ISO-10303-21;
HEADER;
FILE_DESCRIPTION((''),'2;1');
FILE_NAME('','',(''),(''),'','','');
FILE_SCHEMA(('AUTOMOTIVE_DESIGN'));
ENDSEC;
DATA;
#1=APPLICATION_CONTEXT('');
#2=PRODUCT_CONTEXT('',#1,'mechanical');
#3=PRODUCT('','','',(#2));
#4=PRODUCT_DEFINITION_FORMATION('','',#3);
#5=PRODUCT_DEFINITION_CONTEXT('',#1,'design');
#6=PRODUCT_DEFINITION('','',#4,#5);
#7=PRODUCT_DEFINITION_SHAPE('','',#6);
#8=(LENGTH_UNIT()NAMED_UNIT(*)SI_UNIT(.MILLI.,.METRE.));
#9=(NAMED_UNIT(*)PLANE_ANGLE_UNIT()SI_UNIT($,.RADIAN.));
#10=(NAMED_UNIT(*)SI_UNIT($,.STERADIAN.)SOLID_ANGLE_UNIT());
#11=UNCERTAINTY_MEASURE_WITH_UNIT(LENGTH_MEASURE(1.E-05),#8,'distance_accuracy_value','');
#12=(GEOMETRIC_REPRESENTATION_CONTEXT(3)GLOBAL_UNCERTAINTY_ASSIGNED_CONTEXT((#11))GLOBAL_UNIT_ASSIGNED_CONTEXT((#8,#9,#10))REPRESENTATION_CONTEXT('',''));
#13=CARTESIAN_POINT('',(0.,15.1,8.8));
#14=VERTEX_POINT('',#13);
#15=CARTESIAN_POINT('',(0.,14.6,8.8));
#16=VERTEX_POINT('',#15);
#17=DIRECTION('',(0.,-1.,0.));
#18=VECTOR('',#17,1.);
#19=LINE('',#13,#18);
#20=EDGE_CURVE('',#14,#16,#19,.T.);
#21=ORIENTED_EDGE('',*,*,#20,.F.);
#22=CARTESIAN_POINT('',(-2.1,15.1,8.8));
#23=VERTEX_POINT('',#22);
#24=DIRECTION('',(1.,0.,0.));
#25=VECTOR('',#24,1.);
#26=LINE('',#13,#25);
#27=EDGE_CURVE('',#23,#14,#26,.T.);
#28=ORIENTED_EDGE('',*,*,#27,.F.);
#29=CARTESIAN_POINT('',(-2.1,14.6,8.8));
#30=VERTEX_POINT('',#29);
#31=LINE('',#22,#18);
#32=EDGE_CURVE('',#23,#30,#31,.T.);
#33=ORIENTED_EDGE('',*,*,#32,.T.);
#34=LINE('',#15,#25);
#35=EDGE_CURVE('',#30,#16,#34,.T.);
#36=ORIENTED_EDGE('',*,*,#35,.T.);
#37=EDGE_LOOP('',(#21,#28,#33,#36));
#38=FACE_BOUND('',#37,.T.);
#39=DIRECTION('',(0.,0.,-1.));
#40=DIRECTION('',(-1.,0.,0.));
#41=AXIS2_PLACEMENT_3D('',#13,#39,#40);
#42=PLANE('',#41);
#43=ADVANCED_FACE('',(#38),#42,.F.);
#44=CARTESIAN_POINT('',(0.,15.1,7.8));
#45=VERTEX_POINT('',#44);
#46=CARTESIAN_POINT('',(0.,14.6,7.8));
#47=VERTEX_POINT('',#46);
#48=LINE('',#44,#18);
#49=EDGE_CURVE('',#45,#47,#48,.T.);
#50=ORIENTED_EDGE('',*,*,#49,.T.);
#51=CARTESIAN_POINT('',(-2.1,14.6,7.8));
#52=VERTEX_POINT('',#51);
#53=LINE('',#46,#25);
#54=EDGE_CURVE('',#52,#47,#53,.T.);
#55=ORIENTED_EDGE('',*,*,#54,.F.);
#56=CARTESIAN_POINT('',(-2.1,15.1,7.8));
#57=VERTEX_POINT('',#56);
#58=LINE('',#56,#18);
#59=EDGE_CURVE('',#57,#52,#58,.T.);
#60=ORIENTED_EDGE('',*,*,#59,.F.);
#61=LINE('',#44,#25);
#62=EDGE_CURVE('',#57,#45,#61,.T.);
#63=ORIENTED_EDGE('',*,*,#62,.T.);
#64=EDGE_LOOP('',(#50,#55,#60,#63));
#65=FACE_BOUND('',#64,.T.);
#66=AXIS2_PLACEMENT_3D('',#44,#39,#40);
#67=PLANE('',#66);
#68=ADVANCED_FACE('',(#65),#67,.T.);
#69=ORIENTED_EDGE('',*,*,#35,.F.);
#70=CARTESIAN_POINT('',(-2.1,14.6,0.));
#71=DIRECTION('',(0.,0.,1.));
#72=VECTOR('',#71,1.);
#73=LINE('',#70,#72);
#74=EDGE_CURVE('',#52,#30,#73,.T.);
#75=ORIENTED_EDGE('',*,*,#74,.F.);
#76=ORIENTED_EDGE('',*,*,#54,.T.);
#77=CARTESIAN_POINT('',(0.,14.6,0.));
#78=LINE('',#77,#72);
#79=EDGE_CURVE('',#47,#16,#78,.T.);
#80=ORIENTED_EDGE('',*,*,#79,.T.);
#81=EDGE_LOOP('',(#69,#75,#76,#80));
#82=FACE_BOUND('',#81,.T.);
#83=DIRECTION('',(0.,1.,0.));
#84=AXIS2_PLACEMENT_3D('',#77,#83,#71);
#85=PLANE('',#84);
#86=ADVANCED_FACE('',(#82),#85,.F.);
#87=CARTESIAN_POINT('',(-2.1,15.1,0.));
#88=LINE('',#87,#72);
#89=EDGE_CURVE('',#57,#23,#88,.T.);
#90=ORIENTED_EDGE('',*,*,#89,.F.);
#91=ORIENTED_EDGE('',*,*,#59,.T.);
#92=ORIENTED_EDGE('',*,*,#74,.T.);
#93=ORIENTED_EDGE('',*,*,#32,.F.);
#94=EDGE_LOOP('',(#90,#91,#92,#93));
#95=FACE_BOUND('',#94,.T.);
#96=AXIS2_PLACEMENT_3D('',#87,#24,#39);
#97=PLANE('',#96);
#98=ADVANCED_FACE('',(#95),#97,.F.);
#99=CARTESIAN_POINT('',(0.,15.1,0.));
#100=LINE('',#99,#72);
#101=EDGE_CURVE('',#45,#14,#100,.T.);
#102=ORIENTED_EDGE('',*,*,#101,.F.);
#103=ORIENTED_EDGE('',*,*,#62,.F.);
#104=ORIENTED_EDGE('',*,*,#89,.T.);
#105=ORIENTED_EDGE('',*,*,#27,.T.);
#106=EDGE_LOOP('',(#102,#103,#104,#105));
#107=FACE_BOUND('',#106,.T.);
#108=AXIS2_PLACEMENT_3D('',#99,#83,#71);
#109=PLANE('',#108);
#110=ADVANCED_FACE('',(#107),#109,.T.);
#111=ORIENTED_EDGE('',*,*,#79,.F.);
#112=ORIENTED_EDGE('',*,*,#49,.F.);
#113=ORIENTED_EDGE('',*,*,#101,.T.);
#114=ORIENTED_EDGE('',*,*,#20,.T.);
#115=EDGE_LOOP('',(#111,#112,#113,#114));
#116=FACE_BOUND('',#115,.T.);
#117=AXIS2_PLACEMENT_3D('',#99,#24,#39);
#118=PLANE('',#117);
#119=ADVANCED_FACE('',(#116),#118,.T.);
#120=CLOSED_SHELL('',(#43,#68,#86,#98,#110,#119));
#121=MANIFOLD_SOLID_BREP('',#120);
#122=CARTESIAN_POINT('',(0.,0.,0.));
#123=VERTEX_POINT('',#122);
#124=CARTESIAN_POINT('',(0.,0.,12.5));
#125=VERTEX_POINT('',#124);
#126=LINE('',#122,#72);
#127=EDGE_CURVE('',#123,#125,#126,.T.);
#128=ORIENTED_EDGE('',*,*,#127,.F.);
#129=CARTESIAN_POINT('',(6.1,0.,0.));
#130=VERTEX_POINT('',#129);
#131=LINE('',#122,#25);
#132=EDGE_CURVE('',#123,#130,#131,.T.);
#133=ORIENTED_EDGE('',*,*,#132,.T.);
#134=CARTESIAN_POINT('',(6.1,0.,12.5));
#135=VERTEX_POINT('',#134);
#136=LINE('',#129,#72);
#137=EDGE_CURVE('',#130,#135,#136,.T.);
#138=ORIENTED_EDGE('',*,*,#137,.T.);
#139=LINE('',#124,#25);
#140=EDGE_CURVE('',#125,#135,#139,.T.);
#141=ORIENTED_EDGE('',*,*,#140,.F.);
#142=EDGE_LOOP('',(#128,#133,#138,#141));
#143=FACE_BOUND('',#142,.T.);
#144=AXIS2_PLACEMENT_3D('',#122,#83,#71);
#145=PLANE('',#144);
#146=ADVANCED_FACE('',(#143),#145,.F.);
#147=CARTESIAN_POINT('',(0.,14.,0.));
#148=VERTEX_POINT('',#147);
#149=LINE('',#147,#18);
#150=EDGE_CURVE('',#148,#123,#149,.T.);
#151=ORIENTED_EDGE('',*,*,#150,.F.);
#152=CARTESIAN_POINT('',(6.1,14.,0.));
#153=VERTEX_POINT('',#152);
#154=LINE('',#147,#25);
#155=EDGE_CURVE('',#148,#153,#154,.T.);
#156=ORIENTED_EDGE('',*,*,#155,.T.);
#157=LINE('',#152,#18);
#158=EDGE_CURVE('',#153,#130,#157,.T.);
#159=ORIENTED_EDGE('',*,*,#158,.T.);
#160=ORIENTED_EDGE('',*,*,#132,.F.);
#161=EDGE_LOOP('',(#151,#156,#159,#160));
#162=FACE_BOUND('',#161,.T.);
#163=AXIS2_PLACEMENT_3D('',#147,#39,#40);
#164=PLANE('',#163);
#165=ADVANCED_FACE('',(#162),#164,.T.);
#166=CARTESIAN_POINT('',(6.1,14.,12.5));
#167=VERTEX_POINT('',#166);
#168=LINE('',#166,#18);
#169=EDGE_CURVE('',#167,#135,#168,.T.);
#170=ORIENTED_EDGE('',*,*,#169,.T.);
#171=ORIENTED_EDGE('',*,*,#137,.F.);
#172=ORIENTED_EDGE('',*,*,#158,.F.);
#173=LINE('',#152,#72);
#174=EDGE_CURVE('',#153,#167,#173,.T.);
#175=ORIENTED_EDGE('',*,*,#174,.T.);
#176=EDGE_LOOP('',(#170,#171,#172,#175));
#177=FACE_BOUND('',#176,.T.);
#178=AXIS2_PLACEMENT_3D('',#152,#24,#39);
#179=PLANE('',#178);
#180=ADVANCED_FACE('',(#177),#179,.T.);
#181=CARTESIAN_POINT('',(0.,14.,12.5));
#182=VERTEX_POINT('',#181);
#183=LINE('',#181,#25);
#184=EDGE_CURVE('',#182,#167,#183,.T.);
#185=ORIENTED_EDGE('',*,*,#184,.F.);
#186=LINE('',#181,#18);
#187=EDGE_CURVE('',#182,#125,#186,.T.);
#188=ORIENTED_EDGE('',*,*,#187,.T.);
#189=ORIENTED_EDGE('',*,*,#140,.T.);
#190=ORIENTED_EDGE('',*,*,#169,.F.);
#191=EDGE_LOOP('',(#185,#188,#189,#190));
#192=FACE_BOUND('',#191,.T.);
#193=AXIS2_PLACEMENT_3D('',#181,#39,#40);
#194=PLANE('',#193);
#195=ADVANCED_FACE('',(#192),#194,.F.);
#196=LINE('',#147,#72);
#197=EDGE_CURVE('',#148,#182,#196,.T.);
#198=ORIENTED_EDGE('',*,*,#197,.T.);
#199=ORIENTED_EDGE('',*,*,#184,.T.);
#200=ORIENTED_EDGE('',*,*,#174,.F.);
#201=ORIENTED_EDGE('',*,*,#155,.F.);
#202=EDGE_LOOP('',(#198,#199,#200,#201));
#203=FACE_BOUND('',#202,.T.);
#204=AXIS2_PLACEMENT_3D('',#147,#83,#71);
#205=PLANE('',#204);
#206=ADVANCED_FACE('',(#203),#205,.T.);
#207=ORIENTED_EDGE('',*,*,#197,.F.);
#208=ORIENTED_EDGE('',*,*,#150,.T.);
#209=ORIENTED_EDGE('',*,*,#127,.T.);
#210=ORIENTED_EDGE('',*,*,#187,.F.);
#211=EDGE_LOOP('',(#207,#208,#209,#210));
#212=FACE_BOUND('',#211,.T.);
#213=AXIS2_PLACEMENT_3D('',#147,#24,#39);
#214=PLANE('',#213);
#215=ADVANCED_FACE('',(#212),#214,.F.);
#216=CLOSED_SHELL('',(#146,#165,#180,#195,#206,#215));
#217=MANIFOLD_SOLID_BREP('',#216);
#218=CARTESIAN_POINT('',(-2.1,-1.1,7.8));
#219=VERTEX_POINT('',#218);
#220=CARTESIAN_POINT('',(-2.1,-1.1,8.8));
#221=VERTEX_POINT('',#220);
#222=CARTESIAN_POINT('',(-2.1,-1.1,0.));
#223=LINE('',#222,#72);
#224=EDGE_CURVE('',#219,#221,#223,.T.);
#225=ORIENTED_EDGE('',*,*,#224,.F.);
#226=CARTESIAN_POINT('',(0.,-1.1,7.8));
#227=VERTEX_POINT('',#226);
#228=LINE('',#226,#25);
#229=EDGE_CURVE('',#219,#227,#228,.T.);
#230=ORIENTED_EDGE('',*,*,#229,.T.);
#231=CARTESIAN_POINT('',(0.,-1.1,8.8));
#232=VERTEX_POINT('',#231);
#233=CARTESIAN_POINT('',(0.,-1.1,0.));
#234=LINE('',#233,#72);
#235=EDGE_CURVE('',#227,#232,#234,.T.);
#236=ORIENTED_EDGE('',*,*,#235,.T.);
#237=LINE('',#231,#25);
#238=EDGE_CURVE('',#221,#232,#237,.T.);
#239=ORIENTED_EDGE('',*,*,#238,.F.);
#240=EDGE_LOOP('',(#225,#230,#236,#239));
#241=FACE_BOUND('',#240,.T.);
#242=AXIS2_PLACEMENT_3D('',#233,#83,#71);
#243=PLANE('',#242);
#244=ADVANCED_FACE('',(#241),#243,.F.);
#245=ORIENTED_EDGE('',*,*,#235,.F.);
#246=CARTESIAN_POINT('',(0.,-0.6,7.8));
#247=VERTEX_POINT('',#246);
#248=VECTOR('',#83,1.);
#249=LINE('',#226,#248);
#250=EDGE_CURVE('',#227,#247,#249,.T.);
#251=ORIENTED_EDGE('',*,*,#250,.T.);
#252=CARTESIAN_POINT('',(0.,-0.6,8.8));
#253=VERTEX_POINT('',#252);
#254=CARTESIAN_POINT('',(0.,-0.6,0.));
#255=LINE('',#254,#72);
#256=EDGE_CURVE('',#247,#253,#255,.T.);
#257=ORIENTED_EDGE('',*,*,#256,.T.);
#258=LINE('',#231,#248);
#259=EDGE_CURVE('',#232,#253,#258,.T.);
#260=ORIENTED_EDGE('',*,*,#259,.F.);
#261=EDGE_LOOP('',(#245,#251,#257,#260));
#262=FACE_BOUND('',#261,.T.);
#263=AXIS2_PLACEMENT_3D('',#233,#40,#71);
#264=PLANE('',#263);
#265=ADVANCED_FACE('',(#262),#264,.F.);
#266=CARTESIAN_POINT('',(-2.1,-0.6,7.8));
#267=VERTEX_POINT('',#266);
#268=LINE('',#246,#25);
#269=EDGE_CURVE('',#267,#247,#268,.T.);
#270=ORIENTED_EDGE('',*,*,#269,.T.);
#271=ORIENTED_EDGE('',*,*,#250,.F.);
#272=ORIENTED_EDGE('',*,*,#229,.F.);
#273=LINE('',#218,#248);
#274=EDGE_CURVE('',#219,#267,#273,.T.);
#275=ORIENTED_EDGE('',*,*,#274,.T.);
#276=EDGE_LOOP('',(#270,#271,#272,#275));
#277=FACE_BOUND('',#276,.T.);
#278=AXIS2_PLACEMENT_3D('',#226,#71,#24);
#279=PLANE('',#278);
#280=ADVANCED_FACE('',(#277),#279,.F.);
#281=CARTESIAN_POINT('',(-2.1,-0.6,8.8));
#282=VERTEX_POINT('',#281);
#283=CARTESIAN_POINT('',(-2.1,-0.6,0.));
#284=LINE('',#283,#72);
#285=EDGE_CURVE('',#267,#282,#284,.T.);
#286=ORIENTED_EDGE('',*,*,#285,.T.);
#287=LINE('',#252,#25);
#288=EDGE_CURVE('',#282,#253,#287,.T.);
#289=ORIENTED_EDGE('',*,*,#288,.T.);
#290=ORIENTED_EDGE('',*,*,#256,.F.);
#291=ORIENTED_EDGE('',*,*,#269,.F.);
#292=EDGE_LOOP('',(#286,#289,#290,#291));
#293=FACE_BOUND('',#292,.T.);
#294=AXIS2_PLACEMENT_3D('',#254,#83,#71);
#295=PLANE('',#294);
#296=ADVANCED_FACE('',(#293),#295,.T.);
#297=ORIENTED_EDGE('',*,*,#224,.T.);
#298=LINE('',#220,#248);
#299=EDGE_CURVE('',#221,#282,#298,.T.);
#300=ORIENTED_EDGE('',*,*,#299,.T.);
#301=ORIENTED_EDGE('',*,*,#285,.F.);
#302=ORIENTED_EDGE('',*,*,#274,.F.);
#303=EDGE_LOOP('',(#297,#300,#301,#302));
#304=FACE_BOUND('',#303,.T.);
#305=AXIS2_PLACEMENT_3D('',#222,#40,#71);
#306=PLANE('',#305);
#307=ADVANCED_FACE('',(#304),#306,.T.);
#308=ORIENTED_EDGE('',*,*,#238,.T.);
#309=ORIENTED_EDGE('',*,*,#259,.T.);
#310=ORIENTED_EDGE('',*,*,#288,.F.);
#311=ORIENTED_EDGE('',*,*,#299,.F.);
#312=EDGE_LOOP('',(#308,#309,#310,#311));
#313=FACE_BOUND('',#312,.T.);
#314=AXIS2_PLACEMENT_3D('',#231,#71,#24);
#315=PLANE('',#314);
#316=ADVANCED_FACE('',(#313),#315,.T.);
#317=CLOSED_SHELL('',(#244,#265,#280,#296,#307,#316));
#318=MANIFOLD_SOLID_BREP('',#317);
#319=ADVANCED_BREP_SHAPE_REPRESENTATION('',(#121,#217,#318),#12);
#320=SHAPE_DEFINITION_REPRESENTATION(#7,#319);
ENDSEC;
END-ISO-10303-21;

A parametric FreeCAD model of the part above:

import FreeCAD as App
import Part
import Sketcher

doc = App.newDocument("Part")
body = doc.addObject("PartDesign::Body", "Body")

# Sketch on XZ plane
sketch1 = body.newObject("Sketcher::SketchObject", "Sketch")
sketch1.AttachmentSupport = (doc.getObject("XZ_Plane"), [""])
sketch1.MapMode = "FlatFace"
sketch1.addGeometry(Part.LineSegment(App.Vector(0, 0, 0), App.Vector(0, 12, 0)), False)
sketch1.addGeometry(Part.LineSegment(App.Vector(0, 12, 0), App.Vector(6, 12, 0)), False)
sketch1.addGeometry(Part.LineSegment(App.Vector(6, 12, 0), App.Vector(6, 0, 0)), False)
sketch1.addGeometry(Part.LineSegment(App.Vector(6, 0, 0), App.Vector(0, 0, 0)), False)
sketch1.addConstraint(Sketcher.Constraint("Coincident", 0, 2, 1, 1))
sketch1.addConstraint(Sketcher.Constraint("Coincident", 1, 2, 2, 1))
sketch1.addConstraint(Sketcher.Constraint("Coincident", 2, 2, 3, 1))
sketch1.addConstraint(Sketcher.Constraint("Coincident", 3, 2, 0, 1))
sketch1.addConstraint(Sketcher.Constraint("Vertical", 0))
sketch1.addConstraint(Sketcher.Constraint("Horizontal", 1))
sketch1.addConstraint(Sketcher.Constraint("Vertical", 2))
sketch1.addConstraint(Sketcher.Constraint("Horizontal", 3))
sketch1.addConstraint(Sketcher.Constraint("Coincident", 3, 2, -1, 1))
sketch1.addConstraint(Sketcher.Constraint("DistanceX", 1, 1, 1, 2, 6.1))
sketch1.addConstraint(Sketcher.Constraint("DistanceY", 0, 1, 0, 2, 12.5))
pad1 = body.newObject("PartDesign::Pad", "Pad")
pad1.Profile = sketch1
pad1.Length = 14
pad1.Reversed = True
body2 = doc.addObject("PartDesign::Body", "Body001")

# Sketch on XZ plane
sketch2 = body2.newObject("Sketcher::SketchObject", "Sketch001")
sketch2.AttachmentSupport = (doc.getObject("XZ_Plane001"), [""])
sketch2.MapMode = "FlatFace"
sketch2.AttachmentOffset = App.Placement(App.Vector(0, 0, 0.6), App.Rotation())
sketch2.addGeometry(Part.LineSegment(App.Vector(-2.1, 7.8, 0), App.Vector(-2.1, 8.8, 0)), False)
sketch2.addGeometry(Part.LineSegment(App.Vector(-2.1, 8.8, 0), App.Vector(0, 8.8, 0)), False)
sketch2.addGeometry(Part.LineSegment(App.Vector(0, 8.8, 0), App.Vector(0, 7.8, 0)), False)
sketch2.addGeometry(Part.LineSegment(App.Vector(0, 7.8, 0), App.Vector(-2.1, 7.8, 0)), False)
sketch2.addConstraint(Sketcher.Constraint("Coincident", 0, 2, 1, 1))
sketch2.addConstraint(Sketcher.Constraint("Coincident", 1, 2, 2, 1))
sketch2.addConstraint(Sketcher.Constraint("Coincident", 2, 2, 3, 1))
sketch2.addConstraint(Sketcher.Constraint("Coincident", 3, 2, 0, 1))
sketch2.addConstraint(Sketcher.Constraint("Vertical", 0))
sketch2.addConstraint(Sketcher.Constraint("Horizontal", 1))
sketch2.addConstraint(Sketcher.Constraint("Vertical", 2))
sketch2.addConstraint(Sketcher.Constraint("Horizontal", 3))
sketch2.addConstraint(Sketcher.Constraint("PointOnObject", 1, 2, -2))
sketch2.addConstraint(Sketcher.Constraint("DistanceY", 0, 1, 0, 2, 1.0))
sketch2.addConstraint(Sketcher.Constraint("DistanceX", 1, 1, 1, 2, 2.1))
sketch2.addConstraint(Sketcher.Constraint("DistanceY", -1, 1, 0, 2, 8.8))
pad2 = body2.newObject("PartDesign::Pad", "Pad001")
pad2.Profile = sketch2
pad2.Length = 0.5
body3 = doc.addObject("PartDesign::Body", "Body002")

# Sketch on XZ plane
sketch3 = body3.newObject("Sketcher::SketchObject", "Sketch002")
sketch3.AttachmentSupport = (doc.getObject("XZ_Plane002"), [""])
sketch3.MapMode = "FlatFace"
sketch3.AttachmentOffset = App.Placement(App.Vector(0, 0, -14.6), App.Rotation())
sketch3.addGeometry(Part.LineSegment(App.Vector(-2.1, 7.8, 0), App.Vector(-2.1, 8.8, 0)), False)
sketch3.addGeometry(Part.LineSegment(App.Vector(-2.1, 8.8, 0), App.Vector(0, 8.8, 0)), False)
sketch3.addGeometry(Part.LineSegment(App.Vector(0, 8.8, 0), App.Vector(0, 7.8, 0)), False)
sketch3.addGeometry(Part.LineSegment(App.Vector(0, 7.8, 0), App.Vector(-2.1, 7.8, 0)), False)
sketch3.addConstraint(Sketcher.Constraint("Coincident", 0, 2, 1, 1))
sketch3.addConstraint(Sketcher.Constraint("Coincident", 1, 2, 2, 1))
sketch3.addConstraint(Sketcher.Constraint("Coincident", 2, 2, 3, 1))
sketch3.addConstraint(Sketcher.Constraint("Coincident", 3, 2, 0, 1))
sketch3.addConstraint(Sketcher.Constraint("Vertical", 0))
sketch3.addConstraint(Sketcher.Constraint("Horizontal", 1))
sketch3.addConstraint(Sketcher.Constraint("Vertical", 2))
sketch3.addConstraint(Sketcher.Constraint("Horizontal", 3))
sketch3.addConstraint(Sketcher.Constraint("PointOnObject", 1, 2, -2))
sketch3.addConstraint(Sketcher.Constraint("DistanceY", 0, 1, 0, 2, 1.0))
sketch3.addConstraint(Sketcher.Constraint("DistanceX", 1, 1, 1, 2, 2.1))
sketch3.addConstraint(Sketcher.Constraint("DistanceY", -1, 1, 0, 2, 8.8))
pad3 = body3.newObject("PartDesign::Pad", "Pad002")
pad3.Profile = sketch3
pad3.Length = 0.5
pad3.Reversed = True

doc.recompute()
